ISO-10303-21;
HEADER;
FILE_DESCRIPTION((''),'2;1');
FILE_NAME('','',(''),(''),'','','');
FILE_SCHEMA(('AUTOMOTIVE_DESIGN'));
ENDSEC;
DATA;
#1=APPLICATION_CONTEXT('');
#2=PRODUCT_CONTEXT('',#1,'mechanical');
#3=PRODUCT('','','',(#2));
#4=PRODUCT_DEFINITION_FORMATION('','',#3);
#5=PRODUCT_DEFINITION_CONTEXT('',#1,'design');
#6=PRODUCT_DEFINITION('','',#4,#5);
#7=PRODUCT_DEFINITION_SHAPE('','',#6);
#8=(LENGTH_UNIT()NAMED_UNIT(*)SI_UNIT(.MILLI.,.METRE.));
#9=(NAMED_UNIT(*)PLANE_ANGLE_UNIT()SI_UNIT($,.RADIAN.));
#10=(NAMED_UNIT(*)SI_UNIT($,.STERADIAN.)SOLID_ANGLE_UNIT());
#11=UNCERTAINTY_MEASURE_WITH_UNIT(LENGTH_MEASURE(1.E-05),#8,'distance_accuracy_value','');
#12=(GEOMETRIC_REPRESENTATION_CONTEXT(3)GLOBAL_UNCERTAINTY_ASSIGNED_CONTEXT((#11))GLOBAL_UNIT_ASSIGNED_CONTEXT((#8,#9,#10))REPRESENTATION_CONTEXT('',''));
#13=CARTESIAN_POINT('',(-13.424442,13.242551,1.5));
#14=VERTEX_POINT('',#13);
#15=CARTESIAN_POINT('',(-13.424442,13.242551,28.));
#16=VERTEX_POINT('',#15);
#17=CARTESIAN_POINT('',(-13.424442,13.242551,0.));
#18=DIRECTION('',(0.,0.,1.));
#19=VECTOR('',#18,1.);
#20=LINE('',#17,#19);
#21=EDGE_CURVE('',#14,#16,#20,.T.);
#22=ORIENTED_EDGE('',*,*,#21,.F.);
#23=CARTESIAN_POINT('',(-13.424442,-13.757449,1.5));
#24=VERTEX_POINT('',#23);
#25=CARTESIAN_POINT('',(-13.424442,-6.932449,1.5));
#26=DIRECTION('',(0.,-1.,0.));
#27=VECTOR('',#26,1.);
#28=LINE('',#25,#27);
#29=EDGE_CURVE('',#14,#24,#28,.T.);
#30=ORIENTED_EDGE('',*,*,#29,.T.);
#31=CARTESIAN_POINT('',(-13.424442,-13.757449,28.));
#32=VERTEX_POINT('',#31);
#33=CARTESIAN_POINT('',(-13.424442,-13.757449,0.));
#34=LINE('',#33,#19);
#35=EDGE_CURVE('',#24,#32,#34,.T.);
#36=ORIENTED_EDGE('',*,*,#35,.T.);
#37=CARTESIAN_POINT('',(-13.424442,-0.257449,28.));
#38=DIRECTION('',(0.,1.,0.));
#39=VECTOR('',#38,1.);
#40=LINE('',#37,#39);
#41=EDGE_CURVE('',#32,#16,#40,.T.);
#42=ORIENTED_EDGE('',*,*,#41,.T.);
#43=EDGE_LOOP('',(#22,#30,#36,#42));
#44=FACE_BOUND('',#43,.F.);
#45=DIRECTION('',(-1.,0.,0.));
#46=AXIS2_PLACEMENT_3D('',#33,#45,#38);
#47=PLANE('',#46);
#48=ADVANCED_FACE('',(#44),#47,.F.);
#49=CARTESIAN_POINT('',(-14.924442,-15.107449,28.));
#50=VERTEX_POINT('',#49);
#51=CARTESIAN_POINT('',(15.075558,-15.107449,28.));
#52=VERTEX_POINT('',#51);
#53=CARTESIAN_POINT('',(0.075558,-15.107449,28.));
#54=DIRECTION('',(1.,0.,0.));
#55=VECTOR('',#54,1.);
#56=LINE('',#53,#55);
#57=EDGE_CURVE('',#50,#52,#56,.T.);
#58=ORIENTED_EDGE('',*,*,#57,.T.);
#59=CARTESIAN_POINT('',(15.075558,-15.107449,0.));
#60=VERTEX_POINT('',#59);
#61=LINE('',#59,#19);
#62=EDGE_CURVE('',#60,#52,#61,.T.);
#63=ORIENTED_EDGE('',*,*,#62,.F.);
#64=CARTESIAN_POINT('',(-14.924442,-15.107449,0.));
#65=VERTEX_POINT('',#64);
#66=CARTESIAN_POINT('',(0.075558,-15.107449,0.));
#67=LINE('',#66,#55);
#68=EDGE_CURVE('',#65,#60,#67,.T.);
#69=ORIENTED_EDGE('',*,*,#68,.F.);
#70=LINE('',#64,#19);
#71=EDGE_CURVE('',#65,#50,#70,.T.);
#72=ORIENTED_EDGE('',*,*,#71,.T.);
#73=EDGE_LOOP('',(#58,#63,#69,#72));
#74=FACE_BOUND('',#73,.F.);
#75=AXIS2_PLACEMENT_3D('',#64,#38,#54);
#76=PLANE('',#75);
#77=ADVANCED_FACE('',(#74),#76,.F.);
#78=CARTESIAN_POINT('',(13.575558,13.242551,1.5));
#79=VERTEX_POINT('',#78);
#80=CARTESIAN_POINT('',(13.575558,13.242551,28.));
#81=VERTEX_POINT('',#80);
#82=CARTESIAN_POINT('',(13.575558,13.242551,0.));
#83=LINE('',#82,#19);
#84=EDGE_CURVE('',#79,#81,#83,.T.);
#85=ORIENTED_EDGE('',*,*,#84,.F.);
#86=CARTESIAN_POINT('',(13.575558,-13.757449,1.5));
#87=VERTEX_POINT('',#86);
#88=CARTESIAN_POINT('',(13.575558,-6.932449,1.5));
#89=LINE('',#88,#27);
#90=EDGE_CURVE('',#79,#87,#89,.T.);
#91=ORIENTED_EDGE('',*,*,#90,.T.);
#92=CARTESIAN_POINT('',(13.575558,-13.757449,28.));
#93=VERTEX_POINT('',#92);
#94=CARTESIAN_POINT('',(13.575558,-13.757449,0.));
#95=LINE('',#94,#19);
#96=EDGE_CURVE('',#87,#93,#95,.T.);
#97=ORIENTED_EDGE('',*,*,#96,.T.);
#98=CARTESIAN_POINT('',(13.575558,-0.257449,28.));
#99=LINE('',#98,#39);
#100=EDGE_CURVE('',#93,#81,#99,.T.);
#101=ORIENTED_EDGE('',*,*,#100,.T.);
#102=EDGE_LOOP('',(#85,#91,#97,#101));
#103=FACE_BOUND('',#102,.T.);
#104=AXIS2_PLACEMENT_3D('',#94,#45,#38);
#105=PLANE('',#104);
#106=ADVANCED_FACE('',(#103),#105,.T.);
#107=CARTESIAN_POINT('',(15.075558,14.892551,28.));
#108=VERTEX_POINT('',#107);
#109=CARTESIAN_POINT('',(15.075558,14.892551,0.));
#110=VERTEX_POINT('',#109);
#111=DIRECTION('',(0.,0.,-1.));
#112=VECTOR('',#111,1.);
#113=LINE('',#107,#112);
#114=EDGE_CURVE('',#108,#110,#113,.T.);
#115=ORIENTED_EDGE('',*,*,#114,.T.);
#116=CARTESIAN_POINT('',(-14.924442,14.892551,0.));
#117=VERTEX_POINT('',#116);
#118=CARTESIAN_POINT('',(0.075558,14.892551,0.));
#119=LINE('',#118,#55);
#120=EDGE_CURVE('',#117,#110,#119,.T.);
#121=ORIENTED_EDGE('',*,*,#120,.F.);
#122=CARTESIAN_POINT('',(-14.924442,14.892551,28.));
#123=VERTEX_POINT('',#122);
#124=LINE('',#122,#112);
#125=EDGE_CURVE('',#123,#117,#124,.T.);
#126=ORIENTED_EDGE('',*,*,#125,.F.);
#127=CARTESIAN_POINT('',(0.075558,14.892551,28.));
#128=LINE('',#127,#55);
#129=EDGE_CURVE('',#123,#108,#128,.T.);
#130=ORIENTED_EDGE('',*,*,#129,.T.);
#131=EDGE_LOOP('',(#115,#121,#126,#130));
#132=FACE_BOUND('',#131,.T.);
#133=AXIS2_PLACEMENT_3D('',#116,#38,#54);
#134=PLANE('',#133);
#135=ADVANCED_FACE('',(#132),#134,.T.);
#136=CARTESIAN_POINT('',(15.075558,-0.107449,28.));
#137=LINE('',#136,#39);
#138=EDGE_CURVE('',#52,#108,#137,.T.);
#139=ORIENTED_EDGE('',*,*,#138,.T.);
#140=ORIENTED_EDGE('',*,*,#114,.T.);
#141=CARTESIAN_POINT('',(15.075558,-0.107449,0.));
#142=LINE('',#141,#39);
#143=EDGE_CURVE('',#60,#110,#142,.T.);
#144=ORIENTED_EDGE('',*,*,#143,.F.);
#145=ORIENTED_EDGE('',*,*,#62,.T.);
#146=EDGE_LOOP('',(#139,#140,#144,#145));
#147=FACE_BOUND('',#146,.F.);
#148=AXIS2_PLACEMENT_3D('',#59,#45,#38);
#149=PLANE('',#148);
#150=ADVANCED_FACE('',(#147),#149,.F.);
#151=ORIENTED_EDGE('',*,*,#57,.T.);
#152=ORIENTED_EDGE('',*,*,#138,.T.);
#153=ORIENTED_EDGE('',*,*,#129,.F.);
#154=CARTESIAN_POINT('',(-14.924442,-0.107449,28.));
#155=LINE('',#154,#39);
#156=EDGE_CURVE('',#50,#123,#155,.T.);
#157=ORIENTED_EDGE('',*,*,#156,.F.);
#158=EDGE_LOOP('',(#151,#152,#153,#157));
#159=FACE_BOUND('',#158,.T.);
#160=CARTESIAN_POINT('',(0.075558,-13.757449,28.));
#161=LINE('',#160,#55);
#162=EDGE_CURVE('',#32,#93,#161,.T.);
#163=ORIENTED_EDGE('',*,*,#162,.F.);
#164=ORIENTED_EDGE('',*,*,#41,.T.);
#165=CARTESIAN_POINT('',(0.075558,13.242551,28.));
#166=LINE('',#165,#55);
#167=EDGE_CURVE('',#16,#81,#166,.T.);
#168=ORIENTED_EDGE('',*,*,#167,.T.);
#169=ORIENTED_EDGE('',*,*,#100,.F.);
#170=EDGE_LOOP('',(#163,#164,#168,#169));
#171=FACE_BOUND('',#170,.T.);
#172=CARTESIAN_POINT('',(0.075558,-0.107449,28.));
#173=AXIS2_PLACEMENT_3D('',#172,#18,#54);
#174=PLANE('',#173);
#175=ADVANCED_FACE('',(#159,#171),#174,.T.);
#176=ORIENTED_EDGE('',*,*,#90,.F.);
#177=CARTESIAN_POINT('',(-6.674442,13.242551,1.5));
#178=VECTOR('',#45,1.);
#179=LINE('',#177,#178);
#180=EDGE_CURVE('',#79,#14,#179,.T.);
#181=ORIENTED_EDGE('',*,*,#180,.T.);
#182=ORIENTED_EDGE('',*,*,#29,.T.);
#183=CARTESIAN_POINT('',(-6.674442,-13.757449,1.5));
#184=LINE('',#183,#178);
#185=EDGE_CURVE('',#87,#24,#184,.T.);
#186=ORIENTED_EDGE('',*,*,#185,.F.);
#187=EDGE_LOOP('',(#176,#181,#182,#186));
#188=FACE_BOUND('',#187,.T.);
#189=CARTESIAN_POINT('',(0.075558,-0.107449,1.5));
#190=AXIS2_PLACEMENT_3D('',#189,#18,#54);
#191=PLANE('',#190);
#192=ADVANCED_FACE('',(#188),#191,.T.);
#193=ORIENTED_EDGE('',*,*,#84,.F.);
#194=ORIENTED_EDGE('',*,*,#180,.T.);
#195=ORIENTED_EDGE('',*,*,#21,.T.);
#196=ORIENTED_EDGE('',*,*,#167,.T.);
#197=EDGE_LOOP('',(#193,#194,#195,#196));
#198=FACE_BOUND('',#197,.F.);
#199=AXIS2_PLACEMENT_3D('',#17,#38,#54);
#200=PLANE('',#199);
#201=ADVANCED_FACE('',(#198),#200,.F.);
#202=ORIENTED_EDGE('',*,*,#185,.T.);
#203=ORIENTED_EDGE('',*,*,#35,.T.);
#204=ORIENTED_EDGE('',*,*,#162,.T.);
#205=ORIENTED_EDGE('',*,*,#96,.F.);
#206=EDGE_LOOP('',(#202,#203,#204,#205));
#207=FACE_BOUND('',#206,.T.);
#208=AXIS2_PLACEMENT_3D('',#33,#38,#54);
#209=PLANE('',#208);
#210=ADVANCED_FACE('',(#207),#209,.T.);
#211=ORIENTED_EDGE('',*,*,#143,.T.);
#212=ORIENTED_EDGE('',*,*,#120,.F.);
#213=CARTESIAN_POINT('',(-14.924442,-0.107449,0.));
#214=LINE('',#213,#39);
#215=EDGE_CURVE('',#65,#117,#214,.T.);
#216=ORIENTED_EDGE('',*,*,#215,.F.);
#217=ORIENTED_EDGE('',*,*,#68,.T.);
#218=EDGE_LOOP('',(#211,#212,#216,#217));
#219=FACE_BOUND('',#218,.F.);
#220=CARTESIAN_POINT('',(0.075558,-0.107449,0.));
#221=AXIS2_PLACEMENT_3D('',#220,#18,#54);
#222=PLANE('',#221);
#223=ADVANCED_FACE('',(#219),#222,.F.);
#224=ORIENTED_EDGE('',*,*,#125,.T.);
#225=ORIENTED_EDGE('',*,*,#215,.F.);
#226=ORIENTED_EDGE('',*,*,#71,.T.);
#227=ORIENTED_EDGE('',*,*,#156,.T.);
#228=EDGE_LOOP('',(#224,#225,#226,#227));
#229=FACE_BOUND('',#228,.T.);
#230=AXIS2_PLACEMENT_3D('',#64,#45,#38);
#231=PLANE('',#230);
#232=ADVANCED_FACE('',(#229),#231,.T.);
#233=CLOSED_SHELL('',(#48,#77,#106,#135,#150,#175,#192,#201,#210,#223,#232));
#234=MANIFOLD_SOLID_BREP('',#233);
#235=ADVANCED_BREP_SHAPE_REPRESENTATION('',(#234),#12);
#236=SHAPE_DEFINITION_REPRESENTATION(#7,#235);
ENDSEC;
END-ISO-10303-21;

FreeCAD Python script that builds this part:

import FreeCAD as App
import Part
import Sketcher

doc = App.newDocument("Part")
body = doc.addObject("PartDesign::Body", "Body")

sketch1 = body.newObject("Sketcher::SketchObject", "Sketch")
sketch1.AttachmentSupport = (doc.getObject("XY_Plane"), [""])
sketch1.MapMode = "FlatFace"
sketch1.addGeometry(Part.LineSegment(App.Vector(-15, 15, 0), App.Vector(-15, -15, 0)), False)
sketch1.addGeometry(Part.LineSegment(App.Vector(-15, -15, 0), App.Vector(15, -15, 0)), False)
sketch1.addGeometry(Part.LineSegment(App.Vector(15, -15, 0), App.Vector(15, 15, 0)), False)
sketch1.addGeometry(Part.LineSegment(App.Vector(15, 15, 0), App.Vector(-15, 15, 0)), False)
sketch1.addConstraint(Sketcher.Constraint("Coincident", 0, 2, 1, 1))
sketch1.addConstraint(Sketcher.Constraint("Coincident", 1, 2, 2, 1))
sketch1.addConstraint(Sketcher.Constraint("Coincident", 2, 2, 3, 1))
sketch1.addConstraint(Sketcher.Constraint("Coincident", 3, 2, 0, 1))
sketch1.addConstraint(Sketcher.Constraint("Vertical", 0))
sketch1.addConstraint(Sketcher.Constraint("Horizontal", 1))
sketch1.addConstraint(Sketcher.Constraint("Vertical", 2))
sketch1.addConstraint(Sketcher.Constraint("Horizontal", 3))
sketch1.addConstraint(Sketcher.Constraint("Equal", 3, 0))
sketch1.addConstraint(Sketcher.Constraint("DistanceX", 1, 1, 1, 2, 30.0))
sketch1.addConstraint(Sketcher.Constraint("DistanceY", 0, 2, -1, 1, 15.107449))
sketch1.addConstraint(Sketcher.Constraint("DistanceX", 0, 2, -1, 1, 14.924442))
pad1 = body.newObject("PartDesign::Pad", "Pad")
pad1.Profile = sketch1
pad1.Length = 1.5

sketch2 = body.newObject("Sketcher::SketchObject", "Sketch001")
sketch2.AttachmentSupport = (doc.getObject("XY_Plane"), [""])
sketch2.MapMode = "FlatFace"
sketch2.addGeometry(Part.LineSegment(App.Vector(-15, 15, 0), App.Vector(-15, -15, 0)), False)
sketch2.addGeometry(Part.LineSegment(App.Vector(-15, -15, 0), App.Vector(15, -15, 0)), False)
sketch2.addGeometry(Part.LineSegment(App.Vector(15, -15, 0), App.Vector(15, 15, 0)), False)
sketch2.addGeometry(Part.LineSegment(App.Vector(15, 15, 0), App.Vector(-15, 15, 0)), False)
sketch2.addGeometry(Part.LineSegment(App.Vector(14, -14, 0), App.Vector(-13, -14, 0)), False)
sketch2.addGeometry(Part.LineSegment(App.Vector(-13, -14, 0), App.Vector(-13, 13, 0)), False)
sketch2.addGeometry(Part.LineSegment(App.Vector(-13, 13, 0), App.Vector(14, 13, 0)), False)
sketch2.addGeometry(Part.LineSegment(App.Vector(14, 13, 0), App.Vector(14, -14, 0)), False)
sketch2.addConstraint(Sketcher.Constraint("Coincident", 0, 2, 1, 1))
sketch2.addConstraint(Sketcher.Constraint("Coincident", 1, 2, 2, 1))
sketch2.addConstraint(Sketcher.Constraint("Coincident", 2, 2, 3, 1))
sketch2.addConstraint(Sketcher.Constraint("Coincident", 3, 2, 0, 1))
sketch2.addConstraint(Sketcher.Constraint("Coincident", 4, 2, 5, 1))
sketch2.addConstraint(Sketcher.Constraint("Coincident", 5, 2, 6, 1))
sketch2.addConstraint(Sketcher.Constraint("Coincident", 6, 2, 7, 1))
sketch2.addConstraint(Sketcher.Constraint("Coincident", 7, 2, 4, 1))
sketch2.addConstraint(Sketcher.Constraint("Vertical", 0))
sketch2.addConstraint(Sketcher.Constraint("Horizontal", 1))
sketch2.addConstraint(Sketcher.Constraint("Vertical", 2))
sketch2.addConstraint(Sketcher.Constraint("Horizontal", 3))
sketch2.addConstraint(Sketcher.Constraint("Horizontal", 4))
sketch2.addConstraint(Sketcher.Constraint("Vertical", 5))
sketch2.addConstraint(Sketcher.Constraint("Horizontal", 6))
sketch2.addConstraint(Sketcher.Constraint("Vertical", 7))
sketch2.addConstraint(Sketcher.Constraint("Equal", 3, 0))
sketch2.addConstraint(Sketcher.Constraint("Equal", 6, 5))
sketch2.addConstraint(Sketcher.Constraint("DistanceX", 1, 1, 1, 2, 30.0))
sketch2.addConstraint(Sketcher.Constraint("DistanceX", 4, 2, 4, 1, 27.0))
sketch2.addConstraint(Sketcher.Constraint("DistanceX", 0, 2, 4, 2, 1.5))
sketch2.addConstraint(Sketcher.Constraint("DistanceY", 0, 2, 4, 2, 1.35))
sketch2.addConstraint(Sketcher.Constraint("DistanceY", 0, 2, -1, 1, 15.107449))
sketch2.addConstraint(Sketcher.Constraint("DistanceX", 0, 2, -1, 1, 14.924442))
pad2 = body.newObject("PartDesign::Pad", "Pad001")
pad2.Profile = sketch2
pad2.Length = 28

doc.recompute()
